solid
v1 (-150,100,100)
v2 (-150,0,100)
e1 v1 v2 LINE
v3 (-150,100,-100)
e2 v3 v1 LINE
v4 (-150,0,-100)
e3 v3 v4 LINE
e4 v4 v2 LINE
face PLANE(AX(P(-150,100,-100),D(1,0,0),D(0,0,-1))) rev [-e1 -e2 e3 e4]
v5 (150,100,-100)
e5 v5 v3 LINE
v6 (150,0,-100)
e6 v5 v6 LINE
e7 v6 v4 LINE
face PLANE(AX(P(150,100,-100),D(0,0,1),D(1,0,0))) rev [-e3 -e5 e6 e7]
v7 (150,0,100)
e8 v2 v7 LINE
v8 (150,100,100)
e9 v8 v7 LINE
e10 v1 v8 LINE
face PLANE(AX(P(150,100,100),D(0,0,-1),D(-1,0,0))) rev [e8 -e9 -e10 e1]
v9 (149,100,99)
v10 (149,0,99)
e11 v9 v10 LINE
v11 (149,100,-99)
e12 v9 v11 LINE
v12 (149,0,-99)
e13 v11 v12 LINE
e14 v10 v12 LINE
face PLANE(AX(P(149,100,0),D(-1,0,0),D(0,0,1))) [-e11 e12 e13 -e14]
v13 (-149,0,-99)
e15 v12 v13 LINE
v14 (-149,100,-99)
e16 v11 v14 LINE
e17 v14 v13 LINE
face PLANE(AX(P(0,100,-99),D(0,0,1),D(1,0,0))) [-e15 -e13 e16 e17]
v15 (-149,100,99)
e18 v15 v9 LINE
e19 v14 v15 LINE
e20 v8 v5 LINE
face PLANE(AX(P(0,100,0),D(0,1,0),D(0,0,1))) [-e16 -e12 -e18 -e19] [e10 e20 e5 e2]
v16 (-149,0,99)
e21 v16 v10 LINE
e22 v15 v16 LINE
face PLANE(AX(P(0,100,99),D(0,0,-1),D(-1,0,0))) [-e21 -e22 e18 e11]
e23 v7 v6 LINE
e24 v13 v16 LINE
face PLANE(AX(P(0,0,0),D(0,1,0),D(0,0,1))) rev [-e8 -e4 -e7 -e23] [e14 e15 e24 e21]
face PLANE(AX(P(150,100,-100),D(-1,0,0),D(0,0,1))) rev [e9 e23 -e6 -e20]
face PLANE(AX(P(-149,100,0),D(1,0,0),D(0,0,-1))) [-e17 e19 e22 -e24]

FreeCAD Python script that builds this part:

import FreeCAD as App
import Part
import Sketcher

V = App.Vector

doc = App.newDocument("Part")
body = doc.addObject("PartDesign::Body", "Body")

sketch1 = body.newObject("Sketcher::SketchObject", "Sketch")
sketch1.AttachmentSupport = (doc.getObject("XZ_Plane"), [""])
sketch1.MapMode = "FlatFace"
sketch1.addGeometry([
    Part.LineSegment(V(-150, -100, 0), V(-150, 100, 0)),
    Part.LineSegment(V(-150, 100, 0), V(150, 100, 0)),
    Part.LineSegment(V(150, 100, 0), V(150, -100, 0)),
    Part.LineSegment(V(150, -100, 0), V(-150, -100, 0)),
    Part.LineSegment(V(149, 99, 0), V(-149, 99, 0)),
    Part.LineSegment(V(-149, 99, 0), V(-149, -99, 0)),
    Part.LineSegment(V(-149, -99, 0), V(149, -99, 0)),
    Part.LineSegment(V(149, -99, 0), V(149, 99, 0)),
], False)
sketch1.addConstraint([
    Sketcher.Constraint("Coincident", 0, 2, 1, 1),
    Sketcher.Constraint("Coincident", 1, 2, 2, 1),
    Sketcher.Constraint("Coincident", 2, 2, 3, 1),
    Sketcher.Constraint("Coincident", 3, 2, 0, 1),
    Sketcher.Constraint("Coincident", 4, 2, 5, 1),
    Sketcher.Constraint("Coincident", 5, 2, 6, 1),
    Sketcher.Constraint("Coincident", 6, 2, 7, 1),
    Sketcher.Constraint("Coincident", 7, 2, 4, 1),
    Sketcher.Constraint("Vertical", 0),
    Sketcher.Constraint("Horizontal", 1),
    Sketcher.Constraint("Vertical", 2),
    Sketcher.Constraint("Horizontal", 3),
    Sketcher.Constraint("Horizontal", 4),
    Sketcher.Constraint("Vertical", 5),
    Sketcher.Constraint("Horizontal", 6),
    Sketcher.Constraint("Vertical", 7),
    Sketcher.Constraint("Symmetric", 0, 2, 2, 2, -1, 1),
    Sketcher.Constraint("Symmetric", 4, 2, 6, 2, -1, 1),
    Sketcher.Constraint("DistanceX", 1, 1, 1, 2, 300.0),
    Sketcher.Constraint("DistanceX", 4, 2, 4, 1, 298.0),
    Sketcher.Constraint("DistanceY", 0, 1, 0, 2, 200.0),
    Sketcher.Constraint("DistanceY", 5, 2, 5, 1, 198.0),
])
pad1 = body.newObject("PartDesign::Pad", "Pad")
pad1.Profile = sketch1
pad1.Length = 100
pad1.Reversed = True

doc.recompute()
